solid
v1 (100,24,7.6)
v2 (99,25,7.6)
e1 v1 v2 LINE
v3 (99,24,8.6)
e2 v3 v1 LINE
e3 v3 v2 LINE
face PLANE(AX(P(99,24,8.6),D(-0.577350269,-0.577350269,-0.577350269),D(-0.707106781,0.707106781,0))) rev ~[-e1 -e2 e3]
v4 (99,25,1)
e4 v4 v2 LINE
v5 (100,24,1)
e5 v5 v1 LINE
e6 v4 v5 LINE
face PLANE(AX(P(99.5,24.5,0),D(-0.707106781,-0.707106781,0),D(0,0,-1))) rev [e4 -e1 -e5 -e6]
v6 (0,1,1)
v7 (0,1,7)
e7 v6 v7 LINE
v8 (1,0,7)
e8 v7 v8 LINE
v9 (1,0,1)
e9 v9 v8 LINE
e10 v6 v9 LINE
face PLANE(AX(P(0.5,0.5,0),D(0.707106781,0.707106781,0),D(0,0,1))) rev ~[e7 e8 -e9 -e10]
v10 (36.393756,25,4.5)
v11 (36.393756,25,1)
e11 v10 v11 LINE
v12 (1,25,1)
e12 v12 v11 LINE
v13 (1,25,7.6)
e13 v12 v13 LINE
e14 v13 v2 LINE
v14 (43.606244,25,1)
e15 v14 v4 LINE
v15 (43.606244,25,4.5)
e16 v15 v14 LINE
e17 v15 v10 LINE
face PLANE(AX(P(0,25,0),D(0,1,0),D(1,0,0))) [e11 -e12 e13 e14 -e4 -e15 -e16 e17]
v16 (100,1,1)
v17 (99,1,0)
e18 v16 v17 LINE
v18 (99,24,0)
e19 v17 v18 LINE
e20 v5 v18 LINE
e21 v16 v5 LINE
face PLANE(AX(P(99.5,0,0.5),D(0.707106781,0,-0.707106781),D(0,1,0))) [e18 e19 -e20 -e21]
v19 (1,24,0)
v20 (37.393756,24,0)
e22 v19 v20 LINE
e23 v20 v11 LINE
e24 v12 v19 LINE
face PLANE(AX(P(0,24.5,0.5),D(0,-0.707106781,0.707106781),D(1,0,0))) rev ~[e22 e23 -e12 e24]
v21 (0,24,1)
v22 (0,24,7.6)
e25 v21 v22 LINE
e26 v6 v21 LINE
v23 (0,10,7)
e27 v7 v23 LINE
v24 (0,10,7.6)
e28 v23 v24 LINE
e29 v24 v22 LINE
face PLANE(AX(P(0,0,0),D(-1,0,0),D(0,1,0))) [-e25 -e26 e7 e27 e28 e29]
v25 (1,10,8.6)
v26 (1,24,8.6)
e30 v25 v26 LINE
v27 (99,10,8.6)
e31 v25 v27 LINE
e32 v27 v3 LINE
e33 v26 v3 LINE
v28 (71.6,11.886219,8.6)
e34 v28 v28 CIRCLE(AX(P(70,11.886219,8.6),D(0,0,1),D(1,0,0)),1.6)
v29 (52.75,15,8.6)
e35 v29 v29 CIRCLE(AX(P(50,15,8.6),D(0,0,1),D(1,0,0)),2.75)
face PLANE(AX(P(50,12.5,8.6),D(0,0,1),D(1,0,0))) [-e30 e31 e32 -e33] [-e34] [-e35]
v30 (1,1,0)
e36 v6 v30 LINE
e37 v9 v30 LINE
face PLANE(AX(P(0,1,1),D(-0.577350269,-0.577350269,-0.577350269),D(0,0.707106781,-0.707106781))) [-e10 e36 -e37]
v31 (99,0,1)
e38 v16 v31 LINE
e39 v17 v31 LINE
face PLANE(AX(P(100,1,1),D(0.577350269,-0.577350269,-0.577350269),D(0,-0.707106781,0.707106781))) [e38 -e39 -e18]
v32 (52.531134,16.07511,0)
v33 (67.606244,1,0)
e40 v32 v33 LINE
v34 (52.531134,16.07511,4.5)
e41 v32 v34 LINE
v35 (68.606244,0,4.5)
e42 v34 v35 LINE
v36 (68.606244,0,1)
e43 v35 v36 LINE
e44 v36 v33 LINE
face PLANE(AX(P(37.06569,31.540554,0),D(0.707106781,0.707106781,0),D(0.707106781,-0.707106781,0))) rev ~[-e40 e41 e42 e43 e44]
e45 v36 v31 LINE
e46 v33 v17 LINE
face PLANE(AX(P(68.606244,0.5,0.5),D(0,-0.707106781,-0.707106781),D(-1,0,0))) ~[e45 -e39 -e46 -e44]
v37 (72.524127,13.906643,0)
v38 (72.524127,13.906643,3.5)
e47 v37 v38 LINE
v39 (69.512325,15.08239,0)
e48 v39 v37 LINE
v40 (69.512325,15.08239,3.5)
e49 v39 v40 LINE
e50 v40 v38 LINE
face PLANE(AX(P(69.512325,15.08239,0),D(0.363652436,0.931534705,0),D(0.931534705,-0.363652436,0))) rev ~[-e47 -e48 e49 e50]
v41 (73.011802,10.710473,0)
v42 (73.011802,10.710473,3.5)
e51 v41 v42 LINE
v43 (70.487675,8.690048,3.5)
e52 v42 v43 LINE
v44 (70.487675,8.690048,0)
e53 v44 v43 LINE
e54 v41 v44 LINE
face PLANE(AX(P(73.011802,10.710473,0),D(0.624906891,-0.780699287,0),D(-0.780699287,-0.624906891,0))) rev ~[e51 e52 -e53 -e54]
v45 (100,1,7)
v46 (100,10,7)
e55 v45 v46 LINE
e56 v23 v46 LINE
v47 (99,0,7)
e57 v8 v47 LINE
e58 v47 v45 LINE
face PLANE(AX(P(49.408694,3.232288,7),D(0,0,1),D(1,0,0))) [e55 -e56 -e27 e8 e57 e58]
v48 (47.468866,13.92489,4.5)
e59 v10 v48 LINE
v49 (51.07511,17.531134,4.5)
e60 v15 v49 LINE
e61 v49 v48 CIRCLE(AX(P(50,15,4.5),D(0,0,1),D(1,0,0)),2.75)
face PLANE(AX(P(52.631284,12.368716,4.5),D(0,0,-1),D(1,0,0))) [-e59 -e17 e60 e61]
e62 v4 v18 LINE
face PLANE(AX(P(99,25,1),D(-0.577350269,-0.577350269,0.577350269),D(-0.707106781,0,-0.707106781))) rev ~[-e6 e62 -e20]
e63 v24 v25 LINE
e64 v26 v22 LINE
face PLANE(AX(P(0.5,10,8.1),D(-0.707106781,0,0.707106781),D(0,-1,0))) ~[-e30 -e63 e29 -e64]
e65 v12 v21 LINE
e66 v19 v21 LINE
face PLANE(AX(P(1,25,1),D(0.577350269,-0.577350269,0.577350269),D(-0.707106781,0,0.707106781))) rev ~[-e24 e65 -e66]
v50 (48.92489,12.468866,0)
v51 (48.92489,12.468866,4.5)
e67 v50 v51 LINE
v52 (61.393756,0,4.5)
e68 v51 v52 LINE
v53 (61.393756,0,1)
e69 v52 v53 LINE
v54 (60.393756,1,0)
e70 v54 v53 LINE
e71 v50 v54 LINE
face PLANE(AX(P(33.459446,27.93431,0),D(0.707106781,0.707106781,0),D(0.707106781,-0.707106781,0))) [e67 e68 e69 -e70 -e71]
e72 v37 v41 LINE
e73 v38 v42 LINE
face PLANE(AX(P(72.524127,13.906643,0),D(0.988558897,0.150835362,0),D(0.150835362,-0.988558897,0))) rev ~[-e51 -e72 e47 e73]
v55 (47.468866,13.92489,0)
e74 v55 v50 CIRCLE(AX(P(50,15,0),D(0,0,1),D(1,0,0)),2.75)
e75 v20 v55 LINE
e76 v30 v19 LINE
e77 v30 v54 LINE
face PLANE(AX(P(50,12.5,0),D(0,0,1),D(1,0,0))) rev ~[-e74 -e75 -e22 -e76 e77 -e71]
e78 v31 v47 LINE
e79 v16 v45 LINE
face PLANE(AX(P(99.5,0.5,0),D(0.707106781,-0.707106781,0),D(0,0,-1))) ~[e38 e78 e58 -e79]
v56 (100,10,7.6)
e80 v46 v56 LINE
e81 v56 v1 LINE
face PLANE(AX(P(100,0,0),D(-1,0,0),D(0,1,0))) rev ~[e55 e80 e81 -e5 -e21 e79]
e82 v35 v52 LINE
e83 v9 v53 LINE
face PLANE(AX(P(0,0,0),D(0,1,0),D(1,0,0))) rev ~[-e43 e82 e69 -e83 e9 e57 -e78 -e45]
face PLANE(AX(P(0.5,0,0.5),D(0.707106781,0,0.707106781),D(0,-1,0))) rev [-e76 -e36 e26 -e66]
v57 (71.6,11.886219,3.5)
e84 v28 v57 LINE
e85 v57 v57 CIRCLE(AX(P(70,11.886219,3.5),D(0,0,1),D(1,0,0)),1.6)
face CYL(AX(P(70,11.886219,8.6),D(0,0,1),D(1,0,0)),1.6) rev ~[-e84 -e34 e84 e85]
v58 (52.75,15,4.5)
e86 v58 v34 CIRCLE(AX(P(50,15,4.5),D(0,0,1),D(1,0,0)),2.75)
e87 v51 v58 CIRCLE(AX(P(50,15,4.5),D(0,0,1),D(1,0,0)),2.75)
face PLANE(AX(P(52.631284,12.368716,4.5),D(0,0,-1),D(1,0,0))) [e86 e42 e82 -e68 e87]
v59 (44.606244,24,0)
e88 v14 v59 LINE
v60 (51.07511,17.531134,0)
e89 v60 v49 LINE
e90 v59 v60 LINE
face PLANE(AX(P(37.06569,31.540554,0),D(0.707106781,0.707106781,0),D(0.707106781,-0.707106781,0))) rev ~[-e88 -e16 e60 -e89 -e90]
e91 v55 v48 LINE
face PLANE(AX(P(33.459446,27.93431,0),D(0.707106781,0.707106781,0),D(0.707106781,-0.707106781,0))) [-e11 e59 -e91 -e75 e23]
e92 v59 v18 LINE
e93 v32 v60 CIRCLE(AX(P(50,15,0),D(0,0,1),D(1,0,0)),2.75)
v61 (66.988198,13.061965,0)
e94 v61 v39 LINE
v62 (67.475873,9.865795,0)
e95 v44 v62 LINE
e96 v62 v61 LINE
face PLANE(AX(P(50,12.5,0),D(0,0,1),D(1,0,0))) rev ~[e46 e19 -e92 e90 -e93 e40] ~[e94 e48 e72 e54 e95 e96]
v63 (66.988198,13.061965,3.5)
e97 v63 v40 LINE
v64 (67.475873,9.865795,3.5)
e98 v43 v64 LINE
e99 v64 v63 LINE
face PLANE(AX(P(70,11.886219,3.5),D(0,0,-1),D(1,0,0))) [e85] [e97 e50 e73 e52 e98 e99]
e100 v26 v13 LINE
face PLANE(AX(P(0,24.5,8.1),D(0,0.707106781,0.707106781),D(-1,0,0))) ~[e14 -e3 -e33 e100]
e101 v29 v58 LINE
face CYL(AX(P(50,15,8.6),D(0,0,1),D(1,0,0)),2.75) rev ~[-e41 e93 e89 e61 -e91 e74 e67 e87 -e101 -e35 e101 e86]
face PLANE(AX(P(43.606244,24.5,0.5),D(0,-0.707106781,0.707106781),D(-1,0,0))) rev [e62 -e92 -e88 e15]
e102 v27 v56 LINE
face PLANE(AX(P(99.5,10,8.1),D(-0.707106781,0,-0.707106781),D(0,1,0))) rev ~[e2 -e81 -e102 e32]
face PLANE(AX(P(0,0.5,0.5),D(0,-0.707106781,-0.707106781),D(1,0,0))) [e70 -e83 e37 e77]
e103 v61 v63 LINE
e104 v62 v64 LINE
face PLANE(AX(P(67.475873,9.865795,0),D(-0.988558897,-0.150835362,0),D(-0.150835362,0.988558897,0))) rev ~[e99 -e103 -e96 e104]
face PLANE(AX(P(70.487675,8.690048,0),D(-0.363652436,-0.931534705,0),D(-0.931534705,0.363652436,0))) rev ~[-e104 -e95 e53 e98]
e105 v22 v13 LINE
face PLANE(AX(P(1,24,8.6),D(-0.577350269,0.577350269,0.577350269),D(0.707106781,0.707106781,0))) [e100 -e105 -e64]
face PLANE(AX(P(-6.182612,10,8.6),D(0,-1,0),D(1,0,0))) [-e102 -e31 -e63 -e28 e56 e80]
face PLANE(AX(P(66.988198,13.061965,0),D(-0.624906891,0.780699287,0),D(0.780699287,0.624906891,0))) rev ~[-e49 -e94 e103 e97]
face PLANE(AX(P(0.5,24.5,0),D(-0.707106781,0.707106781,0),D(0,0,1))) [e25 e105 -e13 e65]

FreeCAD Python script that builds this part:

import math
import FreeCAD as App
import Part
import Sketcher

V = App.Vector
Q = App.Units.Quantity


def edges_at(feature, points):
    """Names of the edges that pass closest to the given points."""
    edges = feature.Shape.Edges
    near = lambda p: min(range(len(edges)), key=lambda i: edges[i].distToShape(Part.Vertex(*p))[0])
    return sorted({f"Edge{near(p) + 1}" for p in points})

doc = App.newDocument("Part")
params = doc.addObject("Spreadsheet::Sheet", "Params")
for row, (alias, value) in enumerate([
    ("sketch1_width", "100 mm"),
    ("sketch1_height", "25 mm"),
    ("pad1_length", "8.6 mm"),
    ("pocket1_length", "1.6 mm"),
    ("sketch3_diameter", "5.5 mm"),
    ("sketch4_radius", "2.55 mm"),
    ("pocket3_length", "4.5 mm"),
    ("sketch5_diameter", "3.2 mm"),
    ("pocket5_length", "3.5 mm"),
    ("chamfer_size", "1 mm"),
], start=1):
    params.set(f"A{row}", alias)
    params.set(f"B{row}", "=" + value)
    params.setAlias(f"B{row}", alias)

body = doc.addObject("PartDesign::Body", "Body")

# Sketch on XY plane
sketch1 = body.newObject("Sketcher::SketchObject", "Sketch")
sketch1.AttachmentSupport = (doc.getObject("XY_Plane"), [""])
sketch1.MapMode = "FlatFace"
sketch1.addGeometry(Part.LineSegment(V(0, 25, 0), V(0, 0, 0)), False)
sketch1.addGeometry(Part.LineSegment(V(0, 0, 0), V(100, 0, 0)), False)
sketch1.addGeometry(Part.LineSegment(V(100, 0, 0), V(100, 25, 0)), False)
sketch1.addGeometry(Part.LineSegment(V(100, 25, 0), V(0, 25, 0)), False)
sketch1.addConstraint(Sketcher.Constraint("Coincident", 0, 2, 1, 1))
sketch1.addConstraint(Sketcher.Constraint("Coincident", 1, 2, 2, 1))
sketch1.addConstraint(Sketcher.Constraint("Coincident", 2, 2, 3, 1))
sketch1.addConstraint(Sketcher.Constraint("Coincident", 3, 2, 0, 1))
sketch1.addConstraint(Sketcher.Constraint("Vertical", 0))
sketch1.addConstraint(Sketcher.Constraint("Horizontal", 1))
sketch1.addConstraint(Sketcher.Constraint("Vertical", 2))
sketch1.addConstraint(Sketcher.Constraint("Horizontal", 3))
sketch1.addConstraint(Sketcher.Constraint("Coincident", 0, 2, -1, 1))
sketch1.addConstraint(Sketcher.Constraint("DistanceX", 1, 1, 1, 2, 100.0))
sketch1.addConstraint(Sketcher.Constraint("DistanceY", 0, 2, 0, 1, 25.0))
sketch1.setExpression("Constraints[9]", "Params.sketch1_width")
sketch1.setExpression("Constraints[10]", "Params.sketch1_height")
pad1 = body.newObject("PartDesign::Pad", "Pad")
pad1.Profile = sketch1
pad1.setExpression("Length", "Params.pad1_length")

# Sketch on XY plane
sketch2 = body.newObject("Sketcher::SketchObject", "Sketch001")
sketch2.AttachmentSupport = (doc.getObject("XY_Plane"), [""])
sketch2.MapMode = "FlatFace"
sketch2.AttachmentOffset = App.Placement(V(0, 0, 8.6), App.Rotation())
sketch2.addGeometry(Part.LineSegment(V(-6.182612, 10, 0), V(-6.182612, -3.535424, 0)), False)
sketch2.addGeometry(Part.LineSegment(V(-6.182612, -3.535424, 0), V(105, -3.535424, 0)), False)
sketch2.addGeometry(Part.LineSegment(V(105, -3.535424, 0), V(105, 10, 0)), False)
sketch2.addGeometry(Part.LineSegment(V(105, 10, 0), V(-6.182612, 10, 0)), False)
sketch2.addConstraint(Sketcher.Constraint("Coincident", 0, 2, 1, 1))
sketch2.addConstraint(Sketcher.Constraint("Coincident", 1, 2, 2, 1))
sketch2.addConstraint(Sketcher.Constraint("Coincident", 2, 2, 3, 1))
sketch2.addConstraint(Sketcher.Constraint("Coincident", 3, 2, 0, 1))
sketch2.addConstraint(Sketcher.Constraint("Vertical", 0))
sketch2.addConstraint(Sketcher.Constraint("Horizontal", 1))
sketch2.addConstraint(Sketcher.Constraint("Vertical", 2))
sketch2.addConstraint(Sketcher.Constraint("Horizontal", 3))
sketch2.addConstraint(Sketcher.Constraint("DistanceX", -1, 1, 1, 2, 105.0))
sketch2.addConstraint(Sketcher.Constraint("DistanceY", -1, 1, 2, 2, 10.0))
sketch2.addConstraint(Sketcher.Constraint("DistanceX", 1, 1, 1, 2, 111.182612))
sketch2.addConstraint(Sketcher.Constraint("DistanceY", 0, 2, 0, 1, 13.535424))
pocket1 = body.newObject("PartDesign::Pocket", "Pocket")
pocket1.Profile = sketch2
pocket1.setExpression("Length", "Params.pocket1_length")

# Sketch on XY plane
sketch3 = body.newObject("Sketcher::SketchObject", "Sketch002")
sketch3.AttachmentSupport = (doc.getObject("XY_Plane"), [""])
sketch3.MapMode = "FlatFace"
sketch3.AttachmentOffset = App.Placement(V(0, 0, 8.6), App.Rotation())
sketch3.addGeometry(Part.Circle(V(50, 15, 0), V(0, 0, 1), 2.75), False)
sketch3.addConstraint(Sketcher.Constraint("Diameter", 0, 5.5))
sketch3.addConstraint(Sketcher.Constraint("DistanceX", -1, 1, 0, 3, 50.0))
sketch3.addConstraint(Sketcher.Constraint("DistanceY", -1, 1, 0, 3, 15.0))
sketch3.setExpression("Constraints[0]", "Params.sketch3_diameter")
pocket2 = body.newObject("PartDesign::Pocket", "Pocket001")
pocket2.Profile = sketch3
pocket2.Type = "ThroughAll"

# Sketch on XY plane
sketch4 = body.newObject("Sketcher::SketchObject", "Sketch003")
sketch4.AttachmentSupport = (doc.getObject("XY_Plane"), [""])
sketch4.MapMode = "FlatFace"
sketch4.addGeometry(Part.ArcOfCircle(Part.Circle(V(35.262568, 29.737432, 0), V(0, 0, 1), 2.55), math.radians(45), math.radians(225)), False)
sketch4.addGeometry(Part.LineSegment(V(37.06569, 31.540554, 0), V(71.803122, -3.196878, 0)), False)
sketch4.addGeometry(Part.ArcOfCircle(Part.Circle(V(70, -5, 0), V(0, 0, 1), 2.55), math.radians(-135), math.radians(45)), False)
sketch4.addGeometry(Part.LineSegment(V(68.196878, -6.803122, 0), V(33.459446, 27.93431, 0)), False)
sketch4.addConstraint(Sketcher.Constraint("Tangent", 0, 1, 1, 1))
sketch4.addConstraint(Sketcher.Constraint("Tangent", 1, 2, 2, 2))
sketch4.addConstraint(Sketcher.Constraint("Tangent", 2, 1, 3, 1))
sketch4.addConstraint(Sketcher.Constraint("Tangent", 3, 2, 0, 2))
sketch4.addConstraint(Sketcher.Constraint("Equal", 0, 2))
sketch4.addConstraint(Sketcher.Constraint("Angle", 1, Q("-45 deg")))
sketch4.addConstraint(Sketcher.Constraint("Radius", 0, 2.55))
sketch4.addConstraint(Sketcher.Constraint("DistanceX", -1, 1, 2, 3, 70.0))
sketch4.addConstraint(Sketcher.Constraint("DistanceY", 2, 3, -1, 1, 5.0))
sketch4.addConstraint(Sketcher.Constraint("DistanceX", -1, 1, 0, 3, 35.262568))
sketch4.setExpression("Constraints[6]", "Params.sketch4_radius")
pocket3 = body.newObject("PartDesign::Pocket", "Pocket002")
pocket3.Profile = sketch4
pocket3.setExpression("Length", "Params.pocket3_length")
pocket3.Reversed = True

# Sketch on XY plane
sketch5 = body.newObject("Sketcher::SketchObject", "Sketch004")
sketch5.AttachmentSupport = (doc.getObject("XY_Plane"), [""])
sketch5.MapMode = "FlatFace"
sketch5.AttachmentOffset = App.Placement(V(0, 0, 8.6), App.Rotation())
sketch5.addGeometry(Part.Circle(V(70, 11.886219, 0), V(0, 0, 1), 1.6), False)
sketch5.addConstraint(Sketcher.Constraint("Diameter", 0, 3.2))
sketch5.addConstraint(Sketcher.Constraint("DistanceX", -1, 1, 0, 3, 70.0))
sketch5.addConstraint(Sketcher.Constraint("DistanceY", -1, 1, 0, 3, 11.886219))
sketch5.setExpression("Constraints[0]", "Params.sketch5_diameter")
pocket4 = body.newObject("PartDesign::Pocket", "Pocket003")
pocket4.Profile = sketch5
pocket4.Type = "ThroughAll"

# Sketch on XY plane
sketch6 = body.newObject("Sketcher::SketchObject", "Sketch005")
sketch6.AttachmentSupport = (doc.getObject("XY_Plane"), [""])
sketch6.MapMode = "FlatFace"
sketch6.addGeometry(Part.LineSegment(V(72.524127, 13.906643, 0), V(73.011802, 10.710473, 0)), False)
sketch6.addGeometry(Part.LineSegment(V(73.011802, 10.710473, 0), V(70.487675, 8.690048, 0)), False)
sketch6.addGeometry(Part.LineSegment(V(70.487675, 8.690048, 0), V(67.475873, 9.865795, 0)), False)
sketch6.addGeometry(Part.LineSegment(V(67.475873, 9.865795, 0), V(66.988198, 13.061965, 0)), False)
sketch6.addGeometry(Part.LineSegment(V(66.988198, 13.061965, 0), V(69.512325, 15.08239, 0)), False)
sketch6.addGeometry(Part.LineSegment(V(69.512325, 15.08239, 0), V(72.524127, 13.906643, 0)), False)
sketch6.addConstraint(Sketcher.Constraint("Coincident", 0, 2, 1, 1))
sketch6.addConstraint(Sketcher.Constraint("Coincident", 1, 2, 2, 1))
sketch6.addConstraint(Sketcher.Constraint("Coincident", 2, 2, 3, 1))
sketch6.addConstraint(Sketcher.Constraint("Coincident", 3, 2, 4, 1))
sketch6.addConstraint(Sketcher.Constraint("Coincident", 4, 2, 5, 1))
sketch6.addConstraint(Sketcher.Constraint("Coincident", 5, 2, 0, 1))
sketch6.addConstraint(Sketcher.Constraint("Parallel", 0, 3))
sketch6.addConstraint(Sketcher.Constraint("Parallel", 1, 4))
sketch6.addConstraint(Sketcher.Constraint("Parallel", 2, 5))
sketch6.addConstraint(Sketcher.Constraint("Equal", 0, 1))
sketch6.addConstraint(Sketcher.Constraint("Equal", 1, 2))
sketch6.addConstraint(Sketcher.Constraint("Equal", 2, 3))
sketch6.addConstraint(Sketcher.Constraint("DistanceX", 2, 2, 1, 2, 3.011802))
sketch6.addConstraint(Sketcher.Constraint("Distance", 0, 3.233161))
sketch6.addConstraint(Sketcher.Constraint("DistanceY", -1, 1, 1, 2, 8.690048))
sketch6.addConstraint(Sketcher.Constraint("DistanceY", -1, 1, 4, 2, 15.08239))
sketch6.addConstraint(Sketcher.Constraint("DistanceX", 2, 2, 0, 2, 5.535929))
sketch6.addConstraint(Sketcher.Constraint("DistanceX", -1, 1, 0, 2, 73.011802))
pocket5 = body.newObject("PartDesign::Pocket", "Pocket004")
pocket5.Profile = sketch6
pocket5.setExpression("Length", "Params.pocket5_length")
pocket5.Reversed = True
doc.recompute()

chamfer = body.newObject("PartDesign::Chamfer", "Chamfer")
chamfer.Base = (pocket5, edges_at(pocket5, [
    (30.697, 0, 0),
    (0, 0, 3.5),
    (0, 12.5, 0),
    (18.197, 25, 0),
    (84.303, 0, 0),
    (100, 12.5, 0),
    (100, 0, 3.5),
    (100, 25, 4.3),
    (71.803, 25, 0),
    (100, 17.5, 8.6),
    (0, 25, 4.3),
    (0, 17.5, 8.6),
    (50, 25, 8.6),
]))
chamfer.setExpression("Size", "Params.chamfer_size")

doc.recompute()
